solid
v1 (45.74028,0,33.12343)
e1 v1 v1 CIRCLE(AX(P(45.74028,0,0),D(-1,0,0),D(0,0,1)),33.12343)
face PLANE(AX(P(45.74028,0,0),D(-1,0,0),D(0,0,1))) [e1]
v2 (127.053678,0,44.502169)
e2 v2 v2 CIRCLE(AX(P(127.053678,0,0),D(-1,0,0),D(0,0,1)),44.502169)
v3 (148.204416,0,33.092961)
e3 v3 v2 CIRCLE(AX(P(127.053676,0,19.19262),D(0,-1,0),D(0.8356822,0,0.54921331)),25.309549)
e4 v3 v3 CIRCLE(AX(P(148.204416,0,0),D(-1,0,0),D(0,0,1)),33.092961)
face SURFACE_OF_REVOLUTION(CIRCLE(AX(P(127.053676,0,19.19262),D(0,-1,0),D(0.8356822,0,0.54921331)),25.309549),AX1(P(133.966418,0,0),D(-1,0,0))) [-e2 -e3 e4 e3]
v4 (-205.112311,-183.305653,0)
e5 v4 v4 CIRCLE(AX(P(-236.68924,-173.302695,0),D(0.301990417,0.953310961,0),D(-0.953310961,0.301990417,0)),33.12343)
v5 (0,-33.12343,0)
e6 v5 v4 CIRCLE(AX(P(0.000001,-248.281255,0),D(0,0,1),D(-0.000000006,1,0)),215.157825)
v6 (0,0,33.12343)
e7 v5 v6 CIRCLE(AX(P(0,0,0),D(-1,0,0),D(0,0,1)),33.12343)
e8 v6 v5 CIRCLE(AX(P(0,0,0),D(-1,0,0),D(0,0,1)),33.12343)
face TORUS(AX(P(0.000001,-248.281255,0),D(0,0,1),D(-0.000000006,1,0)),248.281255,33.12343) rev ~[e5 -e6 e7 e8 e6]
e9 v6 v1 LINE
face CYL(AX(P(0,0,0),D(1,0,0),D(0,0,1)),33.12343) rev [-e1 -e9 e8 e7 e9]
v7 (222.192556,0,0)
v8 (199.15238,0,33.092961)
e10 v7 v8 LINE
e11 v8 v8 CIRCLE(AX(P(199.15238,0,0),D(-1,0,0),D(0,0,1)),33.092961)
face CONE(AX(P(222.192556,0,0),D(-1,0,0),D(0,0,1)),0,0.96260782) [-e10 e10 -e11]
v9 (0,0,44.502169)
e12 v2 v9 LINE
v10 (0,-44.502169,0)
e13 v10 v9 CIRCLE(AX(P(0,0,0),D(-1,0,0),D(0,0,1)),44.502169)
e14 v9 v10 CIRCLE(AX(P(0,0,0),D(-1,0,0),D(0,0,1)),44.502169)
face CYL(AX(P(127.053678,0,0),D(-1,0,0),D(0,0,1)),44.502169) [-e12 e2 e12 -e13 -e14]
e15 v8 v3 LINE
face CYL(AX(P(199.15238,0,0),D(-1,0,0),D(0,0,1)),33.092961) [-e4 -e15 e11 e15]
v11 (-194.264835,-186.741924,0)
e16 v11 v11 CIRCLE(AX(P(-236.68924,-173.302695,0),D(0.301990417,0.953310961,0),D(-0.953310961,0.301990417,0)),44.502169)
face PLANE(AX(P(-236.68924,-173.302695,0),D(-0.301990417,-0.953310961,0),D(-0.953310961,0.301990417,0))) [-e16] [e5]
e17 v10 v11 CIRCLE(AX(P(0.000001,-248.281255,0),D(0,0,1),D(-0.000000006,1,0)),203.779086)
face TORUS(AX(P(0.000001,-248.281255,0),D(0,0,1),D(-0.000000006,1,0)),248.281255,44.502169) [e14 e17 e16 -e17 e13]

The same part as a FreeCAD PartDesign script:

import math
import FreeCAD as App
import Part
import Sketcher

V = App.Vector

doc = App.newDocument("Part")
body = doc.addObject("PartDesign::Body", "Body")

sketch1 = body.newObject("Sketcher::SketchObject", "Sketch")
sketch1.AttachmentSupport = (doc.getObject("XZ_Plane"), [""])
sketch1.MapMode = "FlatFace"
sketch1.addGeometry(Part.LineSegment(V(0, 45, 0), V(0, 33, 0)), False)
sketch1.addGeometry(Part.LineSegment(V(0, 33, 0), V(46, 33, 0)), False)
sketch1.addGeometry(Part.LineSegment(V(46, 33, 0), V(46, 0, 0)), False)
sketch1.addGeometry(Part.LineSegment(V(46, 0, 0), V(222, 0, 0)), False)
sketch1.addGeometry(Part.LineSegment(V(222, 0, 0), V(199, 33, 0)), False)
sketch1.addGeometry(Part.LineSegment(V(199, 33, 0), V(148, 33, 0)), False)
sketch1.addGeometry(Part.ArcOfCircle(Part.Circle(V(127, 19, 0), V(0, 0, 1), 25), math.radians(33), math.radians(90)), False)
sketch1.addGeometry(Part.LineSegment(V(127, 45, 0), V(0, 45, 0)), False)
sketch1.addConstraint(Sketcher.Constraint("Coincident", 0, 2, 1, 1))
sketch1.addConstraint(Sketcher.Constraint("Coincident", 1, 2, 2, 1))
sketch1.addConstraint(Sketcher.Constraint("Coincident", 2, 2, 3, 1))
sketch1.addConstraint(Sketcher.Constraint("Coincident", 3, 2, 4, 1))
sketch1.addConstraint(Sketcher.Constraint("Coincident", 4, 2, 5, 1))
sketch1.addConstraint(Sketcher.Constraint("Coincident", 5, 2, 6, 1))
sketch1.addConstraint(Sketcher.Constraint("Tangent", 6, 2, 7, 1))
sketch1.addConstraint(Sketcher.Constraint("Coincident", 7, 2, 0, 1))
sketch1.addConstraint(Sketcher.Constraint("Vertical", 0))
sketch1.addConstraint(Sketcher.Constraint("Horizontal", 1))
sketch1.addConstraint(Sketcher.Constraint("Vertical", 2))
sketch1.addConstraint(Sketcher.Constraint("Horizontal", 3))
sketch1.addConstraint(Sketcher.Constraint("Horizontal", 5))
sketch1.addConstraint(Sketcher.Constraint("Horizontal", 7))
sketch1.addConstraint(Sketcher.Constraint("PointOnObject", 0, 2, -2))
sketch1.addConstraint(Sketcher.Constraint("PointOnObject", 2, 2, -1))
sketch1.addConstraint(Sketcher.Constraint("Radius", 6, 25.309549))
sketch1.addConstraint(Sketcher.Constraint("DistanceX", 1, 1, 1, 2, 45.74028))
sketch1.addConstraint(Sketcher.Constraint("DistanceX", 7, 2, 7, 1, 127.053678))
sketch1.addConstraint(Sketcher.Constraint("DistanceY", 0, 2, 0, 1, 11.378739))
sketch1.addConstraint(Sketcher.Constraint("DistanceY", 2, 2, 2, 1, 33.12343))
sketch1.addConstraint(Sketcher.Constraint("DistanceX", 1, 2, 4, 2, 153.4121))
sketch1.addConstraint(Sketcher.Constraint("DistanceX", 3, 1, 3, 2, 176.452276))
sketch1.addConstraint(Sketcher.Constraint("DistanceX", 5, 2, 5, 1, 50.947964))
revolution = body.newObject("PartDesign::Revolution", "Revolution")
revolution.Profile = sketch1
revolution.ReferenceAxis = (sketch1, ["H_Axis"])
revolution.Angle = 360

sketch2 = body.newObject("Sketcher::SketchObject", "Sketch001")
sketch2.AttachmentSupport = (doc.getObject("YZ_Plane"), [""])
sketch2.MapMode = "FlatFace"
sketch2.addGeometry(Part.Circle(V(0, 0, 0), V(0, 0, 1), 45), False)
sketch2.addGeometry(Part.Circle(V(0, 0, 0), V(0, 0, 1), 33), False)
sketch2.addConstraint(Sketcher.Constraint("Coincident", 0, 3, -1, 1))
sketch2.addConstraint(Sketcher.Constraint("Coincident", 1, 3, -1, 1))
sketch2.addConstraint(Sketcher.Constraint("Diameter", 0, 89.004338))
sketch2.addConstraint(Sketcher.Constraint("Diameter", 1, 66.24686))

sketch3 = body.newObject("Sketcher::SketchObject", "Sketch002")
sketch3.AttachmentSupport = (doc.getObject("XY_Plane"), [""])
sketch3.MapMode = "FlatFace"
sketch3.addGeometry(Part.ArcOfCircle(Part.Circle(V(0, -248, 0), V(0, 0, 1), 248), math.radians(90), math.radians(162)), False)
sketch3.addConstraint(Sketcher.Constraint("Coincident", 0, 1, -1, 1))
sketch3.addConstraint(Sketcher.Constraint("PointOnObject", 0, 3, -2))
sketch3.addConstraint(Sketcher.Constraint("Radius", 0, 248.281255))
sketch3.addConstraint(Sketcher.Constraint("DistanceX", 0, 2, -1, 1, 236.68924))
doc.recompute()

additivepipe = body.newObject("PartDesign::AdditivePipe", "AdditivePipe")
additivepipe.Profile = sketch2
additivepipe.Spine = (sketch3, ["Edge1"])

doc.recompute()
